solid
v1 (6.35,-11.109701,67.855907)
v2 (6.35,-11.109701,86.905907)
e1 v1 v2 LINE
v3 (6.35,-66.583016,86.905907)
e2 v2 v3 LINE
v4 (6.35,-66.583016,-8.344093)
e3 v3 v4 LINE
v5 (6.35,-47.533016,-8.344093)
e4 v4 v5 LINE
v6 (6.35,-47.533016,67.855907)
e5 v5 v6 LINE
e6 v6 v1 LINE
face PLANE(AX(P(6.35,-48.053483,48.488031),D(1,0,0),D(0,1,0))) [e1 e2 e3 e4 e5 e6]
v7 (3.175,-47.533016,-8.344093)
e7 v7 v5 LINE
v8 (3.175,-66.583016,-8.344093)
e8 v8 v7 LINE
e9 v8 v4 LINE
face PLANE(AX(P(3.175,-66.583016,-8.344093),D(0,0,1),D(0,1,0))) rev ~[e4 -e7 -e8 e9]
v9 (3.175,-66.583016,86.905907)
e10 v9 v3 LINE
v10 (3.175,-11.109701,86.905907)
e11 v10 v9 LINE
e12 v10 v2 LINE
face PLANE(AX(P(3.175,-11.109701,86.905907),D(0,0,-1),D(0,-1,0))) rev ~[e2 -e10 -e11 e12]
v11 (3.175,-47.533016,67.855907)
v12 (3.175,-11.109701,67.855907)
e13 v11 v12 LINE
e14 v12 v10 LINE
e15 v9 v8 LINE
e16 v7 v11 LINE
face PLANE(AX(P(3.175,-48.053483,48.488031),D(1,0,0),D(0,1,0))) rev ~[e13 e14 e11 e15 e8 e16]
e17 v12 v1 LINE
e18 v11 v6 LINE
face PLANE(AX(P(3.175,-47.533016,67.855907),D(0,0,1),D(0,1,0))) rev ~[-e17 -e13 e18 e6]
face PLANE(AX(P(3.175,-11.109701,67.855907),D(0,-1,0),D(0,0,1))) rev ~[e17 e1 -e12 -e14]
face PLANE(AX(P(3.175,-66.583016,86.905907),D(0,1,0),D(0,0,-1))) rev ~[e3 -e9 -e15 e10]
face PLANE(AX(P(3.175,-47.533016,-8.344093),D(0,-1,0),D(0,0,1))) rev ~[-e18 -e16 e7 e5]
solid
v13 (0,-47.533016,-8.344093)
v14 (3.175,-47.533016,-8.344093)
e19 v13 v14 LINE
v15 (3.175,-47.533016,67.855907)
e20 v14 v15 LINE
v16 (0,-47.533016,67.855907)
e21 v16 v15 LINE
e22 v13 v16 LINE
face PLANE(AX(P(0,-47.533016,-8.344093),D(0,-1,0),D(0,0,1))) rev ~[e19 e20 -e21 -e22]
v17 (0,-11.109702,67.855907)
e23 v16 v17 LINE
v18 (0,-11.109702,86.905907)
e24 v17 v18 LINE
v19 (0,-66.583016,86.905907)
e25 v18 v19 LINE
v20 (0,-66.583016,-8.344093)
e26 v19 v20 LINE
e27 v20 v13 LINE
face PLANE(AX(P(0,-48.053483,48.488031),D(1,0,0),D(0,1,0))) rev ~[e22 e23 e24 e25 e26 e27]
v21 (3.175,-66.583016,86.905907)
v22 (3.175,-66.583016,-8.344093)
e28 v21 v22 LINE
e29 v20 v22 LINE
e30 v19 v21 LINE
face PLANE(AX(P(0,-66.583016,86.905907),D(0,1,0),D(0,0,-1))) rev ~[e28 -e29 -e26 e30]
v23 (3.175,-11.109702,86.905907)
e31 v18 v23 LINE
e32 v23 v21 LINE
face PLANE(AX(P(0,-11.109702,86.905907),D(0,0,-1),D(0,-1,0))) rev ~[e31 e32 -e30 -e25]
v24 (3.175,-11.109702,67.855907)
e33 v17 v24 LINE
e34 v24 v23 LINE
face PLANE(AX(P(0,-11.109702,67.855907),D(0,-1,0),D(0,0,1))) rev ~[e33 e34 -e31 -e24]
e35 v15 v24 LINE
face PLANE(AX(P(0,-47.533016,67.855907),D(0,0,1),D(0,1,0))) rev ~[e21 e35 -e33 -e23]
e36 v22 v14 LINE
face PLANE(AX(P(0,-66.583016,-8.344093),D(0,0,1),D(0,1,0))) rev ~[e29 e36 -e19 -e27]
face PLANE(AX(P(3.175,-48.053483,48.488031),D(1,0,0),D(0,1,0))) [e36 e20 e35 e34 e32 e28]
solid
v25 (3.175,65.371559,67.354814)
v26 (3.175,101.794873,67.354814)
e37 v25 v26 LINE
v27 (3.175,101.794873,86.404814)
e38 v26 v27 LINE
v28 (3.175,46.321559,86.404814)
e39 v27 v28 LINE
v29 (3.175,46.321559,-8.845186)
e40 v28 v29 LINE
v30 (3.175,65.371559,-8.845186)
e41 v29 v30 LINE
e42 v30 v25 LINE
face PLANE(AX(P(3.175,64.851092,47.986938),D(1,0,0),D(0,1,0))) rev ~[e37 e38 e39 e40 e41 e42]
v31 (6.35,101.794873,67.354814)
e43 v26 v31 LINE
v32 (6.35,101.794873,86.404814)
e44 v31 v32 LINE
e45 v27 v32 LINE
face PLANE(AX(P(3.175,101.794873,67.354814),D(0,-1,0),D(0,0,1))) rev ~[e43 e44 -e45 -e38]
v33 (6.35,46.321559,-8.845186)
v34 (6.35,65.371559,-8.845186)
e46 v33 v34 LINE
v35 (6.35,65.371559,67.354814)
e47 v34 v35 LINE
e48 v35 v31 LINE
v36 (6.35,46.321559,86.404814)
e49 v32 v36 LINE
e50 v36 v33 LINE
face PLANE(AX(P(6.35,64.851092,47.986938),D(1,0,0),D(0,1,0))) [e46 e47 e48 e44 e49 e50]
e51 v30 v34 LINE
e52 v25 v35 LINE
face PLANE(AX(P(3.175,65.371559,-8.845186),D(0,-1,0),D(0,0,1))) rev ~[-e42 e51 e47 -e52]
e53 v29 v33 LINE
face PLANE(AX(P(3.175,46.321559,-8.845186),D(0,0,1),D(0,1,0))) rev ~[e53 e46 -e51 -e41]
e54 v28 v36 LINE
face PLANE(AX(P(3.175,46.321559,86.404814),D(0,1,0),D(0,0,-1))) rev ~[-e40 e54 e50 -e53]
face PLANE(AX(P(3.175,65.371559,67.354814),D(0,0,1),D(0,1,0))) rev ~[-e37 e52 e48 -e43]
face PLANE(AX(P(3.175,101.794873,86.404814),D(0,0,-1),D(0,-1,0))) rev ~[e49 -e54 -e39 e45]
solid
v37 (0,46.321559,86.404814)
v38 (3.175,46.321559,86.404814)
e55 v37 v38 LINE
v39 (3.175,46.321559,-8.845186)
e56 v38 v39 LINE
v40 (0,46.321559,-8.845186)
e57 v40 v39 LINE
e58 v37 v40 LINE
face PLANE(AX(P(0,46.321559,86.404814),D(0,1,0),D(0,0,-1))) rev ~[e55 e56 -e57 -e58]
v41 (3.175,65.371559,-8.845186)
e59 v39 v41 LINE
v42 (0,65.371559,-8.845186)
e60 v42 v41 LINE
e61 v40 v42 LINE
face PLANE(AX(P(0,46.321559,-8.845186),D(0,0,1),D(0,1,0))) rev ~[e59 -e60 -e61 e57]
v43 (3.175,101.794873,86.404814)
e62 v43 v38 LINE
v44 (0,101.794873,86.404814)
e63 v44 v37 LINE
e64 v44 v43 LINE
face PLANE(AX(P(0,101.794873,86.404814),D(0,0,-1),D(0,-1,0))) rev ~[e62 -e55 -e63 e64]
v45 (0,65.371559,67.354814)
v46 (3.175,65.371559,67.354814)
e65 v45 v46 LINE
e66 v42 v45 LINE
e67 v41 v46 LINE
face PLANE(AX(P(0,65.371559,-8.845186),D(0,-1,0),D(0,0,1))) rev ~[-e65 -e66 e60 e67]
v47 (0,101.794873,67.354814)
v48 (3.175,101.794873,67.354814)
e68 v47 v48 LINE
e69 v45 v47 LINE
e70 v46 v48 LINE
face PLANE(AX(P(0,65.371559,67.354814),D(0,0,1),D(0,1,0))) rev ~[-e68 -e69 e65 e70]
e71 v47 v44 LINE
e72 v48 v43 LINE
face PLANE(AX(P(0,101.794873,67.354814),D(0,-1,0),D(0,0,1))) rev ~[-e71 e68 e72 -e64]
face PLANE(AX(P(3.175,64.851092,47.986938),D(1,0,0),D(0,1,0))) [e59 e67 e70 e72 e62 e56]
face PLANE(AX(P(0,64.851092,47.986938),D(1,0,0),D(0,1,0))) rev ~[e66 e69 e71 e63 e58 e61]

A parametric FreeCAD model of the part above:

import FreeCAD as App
import Part
import Sketcher
from FreeCAD import Vector
Q = App.Units.Quantity

doc = App.newDocument("Part")
body = doc.addObject("PartDesign::Body", "Body")
body.AllowCompound = True

# Sketch on YZ plane
sketch1 = doc.addObject("Sketcher::SketchObject", "Sketch")
body.addObject(sketch1)
sketch1.AttachmentSupport = (doc.YZ_Plane, [""])
sketch1.MapMode = "FlatFace"
sketch1.addGeometry([
    Part.LineSegment(Vector(-11.109702, 86.905907, 0), Vector(-66.583016, 86.905907, 0)),  # 0
    Part.LineSegment(Vector(-66.583016, 86.905907, 0), Vector(-66.583016, -8.344093, 0)),  # 1
    Part.LineSegment(Vector(-66.583016, -8.344093, 0), Vector(-47.533016, -8.344093, 0)),  # 2
    Part.LineSegment(Vector(-47.533016, -8.344093, 0), Vector(-47.533016, 67.855907, 0)),  # 3
    Part.LineSegment(Vector(-47.533016, 67.855907, 0), Vector(-11.109702, 67.855907, 0)),  # 4
    Part.LineSegment(Vector(-11.109702, 67.855907, 0), Vector(-11.109702, 86.905907, 0)),  # 5
    Part.LineSegment(Vector(101.794873, 86.404814, 0), Vector(46.321559, 86.404814, 0)),  # 6
    Part.LineSegment(Vector(46.321559, 86.404814, 0), Vector(46.321559, -8.845186, 0)),  # 7
    Part.LineSegment(Vector(46.321559, -8.845186, 0), Vector(65.371559, -8.845186, 0)),  # 8
    Part.LineSegment(Vector(65.371559, -8.845186, 0), Vector(65.371559, 67.354814, 0)),  # 9
    Part.LineSegment(Vector(65.371559, 67.354814, 0), Vector(101.794873, 67.354814, 0)),  # 10
    Part.LineSegment(Vector(101.794873, 67.354814, 0), Vector(101.794873, 86.404814, 0)),  # 11
], False)
sketch1.addConstraint([
    Sketcher.Constraint("Coincident", 0, 2, 1, 1),
    Sketcher.Constraint("Coincident", 1, 2, 2, 1),
    Sketcher.Constraint("Coincident", 2, 2, 3, 1),
    Sketcher.Constraint("Coincident", 3, 2, 4, 1),
    Sketcher.Constraint("Coincident", 4, 2, 5, 1),
    Sketcher.Constraint("Coincident", 5, 2, 0, 1),
    Sketcher.Constraint("Coincident", 6, 2, 7, 1),
    Sketcher.Constraint("Coincident", 7, 2, 8, 1),
    Sketcher.Constraint("Coincident", 8, 2, 9, 1),
    Sketcher.Constraint("Coincident", 9, 2, 10, 1),
    Sketcher.Constraint("Coincident", 10, 2, 11, 1),
    Sketcher.Constraint("Coincident", 11, 2, 6, 1),
    Sketcher.Constraint("Horizontal", 0),
    Sketcher.Constraint("Vertical", 1),
    Sketcher.Constraint("Horizontal", 2),
    Sketcher.Constraint("Vertical", 3),
    Sketcher.Constraint("Horizontal", 4),
    Sketcher.Constraint("Vertical", 5),
    Sketcher.Constraint("Horizontal", 6),
    Sketcher.Constraint("Vertical", 7),
    Sketcher.Constraint("Horizontal", 8),
    Sketcher.Constraint("Vertical", 9),
    Sketcher.Constraint("Horizontal", 10),
    Sketcher.Constraint("Vertical", 11),
    Sketcher.Constraint("Equal", 0, 6),
    Sketcher.Constraint("Equal", 2, 8),
    Sketcher.Constraint("Equal", 8, 5),
    Sketcher.Constraint("Equal", 1, 7),
    Sketcher.Constraint("Equal", 3, 9),
    Sketcher.Constraint("DistanceY", 3, 1, 3, 2, Q("3 in")),
    Sketcher.Constraint("DistanceX", 2, 1, 2, 2, Q("0.75 in")),
    Sketcher.Constraint("DistanceX", 0, 2, 0, 1, 55.473314),
    Sketcher.Constraint("DistanceX", -1, 1, 6, 2, 46.321559),
    Sketcher.Constraint("DistanceX", 5, 2, 6, 2, 57.431261),
    Sketcher.Constraint("DistanceY", -1, 1, 0, 2, 86.905907),
    Sketcher.Constraint("DistanceY", -1, 1, 6, 2, 86.404814),
])
pad1 = doc.addObject("PartDesign::Pad", "Pad")
body.addObject(pad1)
pad1.Profile = sketch1
pad1.Length = Q("0.125 in")
body2 = doc.addObject("PartDesign::Body", "Body001")
body2.AllowCompound = True

# Sketch on YZ plane
sketch2 = doc.addObject("Sketcher::SketchObject", "Sketch001")
body2.addObject(sketch2)
sketch2.AttachmentSupport = (doc.getObject("YZ_Plane001"), [""])
sketch2.MapMode = "FlatFace"
sketch2.AttachmentOffset = App.Placement(Vector(0, 0, 0.125 * 25.4), App.Rotation())
sketch2.addGeometry([
    Part.LineSegment(Vector(-11.109701, 67.855907, 0), Vector(-11.109701, 86.905907, 0)),  # 0
    Part.LineSegment(Vector(-11.109701, 86.905907, 0), Vector(-66.583016, 86.905907, 0)),  # 1
    Part.LineSegment(Vector(-66.583016, 86.905907, 0), Vector(-66.583016, -8.344093, 0)),  # 2
    Part.LineSegment(Vector(-66.583016, -8.344093, 0), Vector(-47.533016, -8.344093, 0)),  # 3
    Part.LineSegment(Vector(-47.533016, -8.344093, 0), Vector(-47.533016, 67.855907, 0)),  # 4
    Part.LineSegment(Vector(-47.533016, 67.855907, 0), Vector(-11.109701, 67.855907, 0)),  # 5
    Part.LineSegment(Vector(101.794873, 86.404814, 0), Vector(46.321559, 86.404814, 0)),  # 6
    Part.LineSegment(Vector(46.321559, 86.404814, 0), Vector(46.321559, -8.845186, 0)),  # 7
    Part.LineSegment(Vector(46.321559, -8.845186, 0), Vector(65.371559, -8.845186, 0)),  # 8
    Part.LineSegment(Vector(65.371559, -8.845186, 0), Vector(65.371559, 67.354814, 0)),  # 9
    Part.LineSegment(Vector(65.371559, 67.354814, 0), Vector(101.794873, 67.354814, 0)),  # 10
    Part.LineSegment(Vector(101.794873, 67.354814, 0), Vector(101.794873, 86.404814, 0)),  # 11
], False)
sketch2.addConstraint([
    Sketcher.Constraint("Coincident", 0, 2, 1, 1),
    Sketcher.Constraint("Coincident", 1, 2, 2, 1),
    Sketcher.Constraint("Coincident", 2, 2, 3, 1),
    Sketcher.Constraint("Coincident", 3, 2, 4, 1),
    Sketcher.Constraint("Coincident", 4, 2, 5, 1),
    Sketcher.Constraint("Coincident", 5, 2, 0, 1),
    Sketcher.Constraint("Coincident", 6, 2, 7, 1),
    Sketcher.Constraint("Coincident", 7, 2, 8, 1),
    Sketcher.Constraint("Coincident", 8, 2, 9, 1),
    Sketcher.Constraint("Coincident", 9, 2, 10, 1),
    Sketcher.Constraint("Coincident", 10, 2, 11, 1),
    Sketcher.Constraint("Coincident", 11, 2, 6, 1),
    Sketcher.Constraint("Vertical", 0),
    Sketcher.Constraint("Horizontal", 1),
    Sketcher.Constraint("Vertical", 2),
    Sketcher.Constraint("Horizontal", 3),
    Sketcher.Constraint("Vertical", 4),
    Sketcher.Constraint("Horizontal", 5),
    Sketcher.Constraint("Horizontal", 6),
    Sketcher.Constraint("Vertical", 7),
    Sketcher.Constraint("Horizontal", 8),
    Sketcher.Constraint("Vertical", 9),
    Sketcher.Constraint("Horizontal", 10),
    Sketcher.Constraint("Vertical", 11),
    Sketcher.Constraint("Equal", 1, 6),
    Sketcher.Constraint("Equal", 3, 8),
    Sketcher.Constraint("Equal", 8, 0),
    Sketcher.Constraint("Equal", 2, 7),
    Sketcher.Constraint("Equal", 4, 9),
    Sketcher.Constraint("DistanceY", 4, 1, 4, 2, Q("3 in")),
    Sketcher.Constraint("DistanceX", 3, 1, 3, 2, Q("0.75 in")),
    Sketcher.Constraint("DistanceX", 0, 2, -1, 1, 11.109701),
    Sketcher.Constraint("DistanceX", 1, 2, 1, 1, 55.473315),
    Sketcher.Constraint("DistanceX", -1, 1, 6, 2, 46.321559),
    Sketcher.Constraint("DistanceY", -1, 1, 0, 2, 86.905907),
    Sketcher.Constraint("DistanceY", -1, 1, 6, 2, 86.404814),
])
pad2 = doc.addObject("PartDesign::Pad", "Pad001")
body2.addObject(pad2)
pad2.Profile = sketch2
pad2.Length = Q("0.125 in")

doc.recompute()
